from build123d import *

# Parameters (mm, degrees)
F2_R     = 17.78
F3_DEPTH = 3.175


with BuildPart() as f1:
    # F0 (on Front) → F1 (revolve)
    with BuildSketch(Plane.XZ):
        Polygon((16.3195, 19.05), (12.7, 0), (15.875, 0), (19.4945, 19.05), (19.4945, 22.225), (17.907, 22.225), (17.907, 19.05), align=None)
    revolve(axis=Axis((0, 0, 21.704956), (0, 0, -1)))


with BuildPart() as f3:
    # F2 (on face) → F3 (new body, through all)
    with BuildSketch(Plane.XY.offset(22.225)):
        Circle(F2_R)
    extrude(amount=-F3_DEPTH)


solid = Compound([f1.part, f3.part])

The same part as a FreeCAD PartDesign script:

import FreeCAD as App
import Part
import Sketcher
from FreeCAD import Vector
Q = App.Units.Quantity

doc = App.newDocument("Part")
body = doc.addObject("PartDesign::Body", "Body")

sketch1 = body.newObject("Sketcher::SketchObject", "Sketch")
sketch1.AttachmentSupport = (doc.getObject("XZ_Plane"), [""])
sketch1.MapMode = "FlatFace"
sketch1.addGeometry([
    Part.LineSegment(Vector(16.3, 19.1, 0), Vector(12.7, 0, 0)),
    Part.LineSegment(Vector(12.7, 0, 0), Vector(15.9, 0, 0)),
    Part.LineSegment(Vector(15.9, 0, 0), Vector(19.5, 19.1, 0)),
    Part.LineSegment(Vector(19.5, 19.1, 0), Vector(19.5, 22.2, 0)),
    Part.LineSegment(Vector(19.5, 22.2, 0), Vector(17.9, 22.2, 0)),
    Part.LineSegment(Vector(17.9, 22.2, 0), Vector(17.9, 19.1, 0)),
    Part.LineSegment(Vector(17.9, 19.1, 0), Vector(16.3, 19.1, 0)),
], False)
sketch1.addConstraint([
    Sketcher.Constraint("Coincident", 0, 2, 1, 1),
    Sketcher.Constraint("Coincident", 1, 2, 2, 1),
    Sketcher.Constraint("Coincident", 2, 2, 3, 1),
    Sketcher.Constraint("Coincident", 3, 2, 4, 1),
    Sketcher.Constraint("Coincident", 4, 2, 5, 1),
    Sketcher.Constraint("Coincident", 5, 2, 6, 1),
    Sketcher.Constraint("Coincident", 6, 2, 0, 1),
    Sketcher.Constraint("Horizontal", 1),
    Sketcher.Constraint("Vertical", 3),
    Sketcher.Constraint("Horizontal", 4),
    Sketcher.Constraint("Vertical", 5),
    Sketcher.Constraint("Horizontal", 6),
    Sketcher.Constraint("PointOnObject", 0, 2, -1),
    Sketcher.Constraint("Parallel", 0, 2),
    Sketcher.Constraint("Horizontal", 2, 2, 5, 2),
    Sketcher.Constraint("Equal", 4, 6),
    Sketcher.Constraint("Equal", 1, 3),
    Sketcher.Constraint("DistanceX", -1, 1, 0, 2, Q("0.5 in")),
    Sketcher.Constraint("DistanceX", 1, 1, 1, 2, Q("0.125 in")),
    Sketcher.Constraint("DistanceY", -1, 1, 2, 2, Q("0.75 in")),
    Sketcher.Constraint("DistanceX", 1, 2, 4, 2, Q("0.08 in")),
])
revolution = body.newObject("PartDesign::Revolution", "Revolution")
revolution.Profile = sketch1
revolution.ReferenceAxis = (sketch1, ["V_Axis"])
revolution.Angle = 360
body2 = doc.addObject("PartDesign::Body", "Body001")

sketch2 = body2.newObject("Sketcher::SketchObject", "Sketch001")
sketch2.AttachmentSupport = (doc.getObject("XY_Plane001"), [""])
sketch2.MapMode = "FlatFace"
sketch2.AttachmentOffset = App.Placement(Vector(0, 0, 0.875 * 25.4), App.Rotation())
sketch2.addGeometry(Part.Circle(Vector(0, 0, 0), Vector(0, 0, 1), 18), False)
sketch2.addConstraint([
    Sketcher.Constraint("Coincident", 0, 3, -1, 1),
    Sketcher.Constraint("Diameter", 0, Q("1.4 in")),
])
pad1 = body2.newObject("PartDesign::Pad", "Pad")
pad1.Profile = sketch2
pad1.Length = Q("0.125 in")
pad1.Reversed = True

doc.recompute()
